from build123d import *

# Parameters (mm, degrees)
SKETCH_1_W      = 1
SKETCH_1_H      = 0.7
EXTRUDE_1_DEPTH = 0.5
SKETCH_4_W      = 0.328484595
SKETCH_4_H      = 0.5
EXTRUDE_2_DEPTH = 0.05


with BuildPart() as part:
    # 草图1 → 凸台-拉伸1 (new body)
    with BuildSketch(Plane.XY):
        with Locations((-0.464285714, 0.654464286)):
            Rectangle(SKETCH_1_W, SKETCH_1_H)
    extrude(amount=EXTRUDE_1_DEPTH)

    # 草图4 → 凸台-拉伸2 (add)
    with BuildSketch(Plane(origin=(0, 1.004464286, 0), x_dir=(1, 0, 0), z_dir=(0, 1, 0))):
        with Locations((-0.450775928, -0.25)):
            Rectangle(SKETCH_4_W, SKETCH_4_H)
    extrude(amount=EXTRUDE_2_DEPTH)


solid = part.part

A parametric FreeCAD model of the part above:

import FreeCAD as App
import Part
import Sketcher

V = App.Vector
Q = App.Units.Quantity


def add_polygon(sketch, points):
    """Adds a closed chain of lines whose ends are joined by coincident constraints."""
    first, n = sketch.GeometryCount, len(points)
    for a, b in zip(points, points[1:] + points[:1]):
        sketch.addGeometry(Part.LineSegment(App.Vector(*a, 0), App.Vector(*b, 0)), False)
    for i in range(n):
        sketch.addConstraint(Sketcher.Constraint("Coincident", first + i, 2, first + (i + 1) % n, 1))

doc = App.newDocument("Part")
body = doc.addObject("PartDesign::Body", "Body")

sketch1 = doc.addObject("Sketcher::SketchObject", "Sketch")
body.addObject(sketch1)
sketch1.AttachmentSupport = (doc.XY_Plane, [""])
sketch1.MapMode = "FlatFace"
add_polygon(sketch1, [(-1, 1), (-1, 0.3), (0, 0.3), (0, 1)])
sketch1.addConstraint([
    Sketcher.Constraint("Vertical", 0),
    Sketcher.Constraint("Horizontal", 1),
    Sketcher.Constraint("Vertical", 2),
    Sketcher.Constraint("Horizontal", 3),
    Sketcher.Constraint("DistanceX", 1, 1, 1, 2, Q("1 mm")),
    Sketcher.Constraint("DistanceY", 0, 2, 0, 1, Q("0.7 mm")),
    Sketcher.Constraint("DistanceX", 0, 2, -1, 1, Q("0.964286 mm")),
    Sketcher.Constraint("DistanceY", -1, 1, 0, 2, Q("0.304464 mm")),
])
pad1 = doc.addObject("PartDesign::Pad", "Pad")
body.addObject(pad1)
pad1.Profile = sketch1
pad1.Length = 0.5

sketch2 = doc.addObject("Sketcher::SketchObject", "Sketch001")
body.addObject(sketch2)
sketch2.AttachmentSupport = (doc.XZ_Plane, [""])
sketch2.MapMode = "FlatFace"
sketch2.AttachmentOffset = App.Placement(V(0, 0, -1.004464), App.Rotation())
add_polygon(sketch2, [(-0.62, 0), (-0.62, 0.5), (-0.29, 0.5), (-0.29, 0)])
sketch2.addConstraint([
    Sketcher.Constraint("Vertical", 0),
    Sketcher.Constraint("Horizontal", 1),
    Sketcher.Constraint("Vertical", 2),
    Sketcher.Constraint("Horizontal", 3),
    Sketcher.Constraint("PointOnObject", 2, 2, -1),
    Sketcher.Constraint("DistanceY", 0, 1, 0, 2, Q("0.5 mm")),
    Sketcher.Constraint("DistanceX", 1, 1, 1, 2, Q("0.328485 mm")),
    Sketcher.Constraint("DistanceX", 0, 2, -1, 1, Q("0.615018 mm")),
])
pad2 = doc.addObject("PartDesign::Pad", "Pad001")
body.addObject(pad2)
pad2.Profile = sketch2
pad2.Length = 0.05
pad2.Reversed = True

doc.recompute()
